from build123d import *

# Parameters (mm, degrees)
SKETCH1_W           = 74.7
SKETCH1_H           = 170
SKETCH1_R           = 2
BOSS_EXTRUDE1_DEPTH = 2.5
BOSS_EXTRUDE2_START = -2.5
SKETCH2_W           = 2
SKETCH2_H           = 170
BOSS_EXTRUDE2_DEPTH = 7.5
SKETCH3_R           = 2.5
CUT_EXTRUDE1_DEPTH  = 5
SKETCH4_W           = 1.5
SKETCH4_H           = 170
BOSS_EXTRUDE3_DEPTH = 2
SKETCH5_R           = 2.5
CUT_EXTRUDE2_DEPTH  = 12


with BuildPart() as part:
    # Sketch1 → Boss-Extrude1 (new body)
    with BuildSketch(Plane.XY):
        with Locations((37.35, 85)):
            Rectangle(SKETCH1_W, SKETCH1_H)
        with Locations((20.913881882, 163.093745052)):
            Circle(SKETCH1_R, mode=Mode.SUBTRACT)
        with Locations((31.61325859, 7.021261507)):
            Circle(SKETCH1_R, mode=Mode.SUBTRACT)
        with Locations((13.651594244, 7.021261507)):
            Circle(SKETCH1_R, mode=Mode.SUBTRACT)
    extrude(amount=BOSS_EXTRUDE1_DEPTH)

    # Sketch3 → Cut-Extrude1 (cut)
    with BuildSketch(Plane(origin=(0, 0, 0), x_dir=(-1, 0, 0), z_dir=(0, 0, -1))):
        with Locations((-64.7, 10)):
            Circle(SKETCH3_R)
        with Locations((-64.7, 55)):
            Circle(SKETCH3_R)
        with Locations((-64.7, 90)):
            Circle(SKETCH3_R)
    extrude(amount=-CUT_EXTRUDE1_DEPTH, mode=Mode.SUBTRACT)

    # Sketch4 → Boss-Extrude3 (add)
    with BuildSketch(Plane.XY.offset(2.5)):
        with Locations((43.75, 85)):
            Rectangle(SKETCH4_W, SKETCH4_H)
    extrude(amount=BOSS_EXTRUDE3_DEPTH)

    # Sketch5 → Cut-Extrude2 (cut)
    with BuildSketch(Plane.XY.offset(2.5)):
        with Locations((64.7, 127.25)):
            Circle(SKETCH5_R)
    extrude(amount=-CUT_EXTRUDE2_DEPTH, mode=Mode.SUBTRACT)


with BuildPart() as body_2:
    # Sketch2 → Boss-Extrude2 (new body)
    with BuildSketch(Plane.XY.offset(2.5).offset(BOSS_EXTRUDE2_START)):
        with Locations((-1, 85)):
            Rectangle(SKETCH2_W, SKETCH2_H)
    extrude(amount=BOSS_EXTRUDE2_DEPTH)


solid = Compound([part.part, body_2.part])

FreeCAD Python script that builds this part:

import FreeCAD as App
import Part
import Sketcher
from FreeCAD import Vector

doc = App.newDocument("Part")
body = doc.addObject("PartDesign::Body", "Body")

sketch1 = body.newObject("Sketcher::SketchObject", "Sketch")
sketch1.AttachmentSupport = (doc.getObject("XY_Plane"), [""])
sketch1.MapMode = "FlatFace"
sketch1.addGeometry([
    Part.LineSegment(Vector(0, 170, 0), Vector(0, 0, 0)),
    Part.LineSegment(Vector(0, 0, 0), Vector(74.7, 0, 0)),
    Part.LineSegment(Vector(74.7, 0, 0), Vector(74.7, 170, 0)),
    Part.LineSegment(Vector(74.7, 170, 0), Vector(0, 170, 0)),
    Part.Circle(Vector(13.7, 7, 0), Vector(0, 0, 1), 2),
    Part.Circle(Vector(31.6, 7, 0), Vector(0, 0, 1), 2),
    Part.Circle(Vector(20.9, 163.1, 0), Vector(0, 0, 1), 2),
], False)
sketch1.addConstraint([
    Sketcher.Constraint("Coincident", 0, 2, 1, 1),
    Sketcher.Constraint("Coincident", 1, 2, 2, 1),
    Sketcher.Constraint("Coincident", 2, 2, 3, 1),
    Sketcher.Constraint("Coincident", 3, 2, 0, 1),
    Sketcher.Constraint("Vertical", 0),
    Sketcher.Constraint("Horizontal", 1),
    Sketcher.Constraint("Vertical", 2),
    Sketcher.Constraint("Horizontal", 3),
    Sketcher.Constraint("Coincident", 0, 2, -1, 1),
    Sketcher.Constraint("Equal", 4, 5),
    Sketcher.Constraint("Equal", 5, 6),
    Sketcher.Constraint("Horizontal", 4, 3, 5, 3),
    Sketcher.Constraint("Diameter", 4, 4.0),
    Sketcher.Constraint("DistanceY", 0, 2, 0, 1, 170.0),
    Sketcher.Constraint("DistanceX", 1, 1, 1, 2, 74.7),
    Sketcher.Constraint("DistanceY", -1, 1, 4, 3, 7.021262),
    Sketcher.Constraint("DistanceX", -1, 1, 5, 3, 31.613259),
    Sketcher.Constraint("DistanceX", -1, 1, 6, 3, 20.913882),
    Sketcher.Constraint("DistanceX", -1, 1, 4, 3, 13.651594),
    Sketcher.Constraint("DistanceY", -1, 1, 6, 3, 163.093745),
])
pad1 = body.newObject("PartDesign::Pad", "Pad")
pad1.Profile = sketch1
pad1.Length = 2.5

sketch2 = body.newObject("Sketcher::SketchObject", "Sketch001")
sketch2.AttachmentSupport = (doc.getObject("XY_Plane"), [""])
sketch2.MapMode = "FlatFace"
sketch2.addGeometry([
    Part.Circle(Vector(64.7, 10, 0), Vector(0, 0, 1), 2.5),
    Part.Circle(Vector(64.7, 55, 0), Vector(0, 0, 1), 2.5),
    Part.Circle(Vector(64.7, 90, 0), Vector(0, 0, 1), 2.5),
], False)
sketch2.addConstraint([
    Sketcher.Constraint("Equal", 0, 1),
    Sketcher.Constraint("Equal", 1, 2),
    Sketcher.Constraint("Vertical", 0, 3, 1, 3),
    Sketcher.Constraint("Vertical", 1, 3, 2, 3),
    Sketcher.Constraint("Diameter", 0, 5.0),
    Sketcher.Constraint("DistanceY", -1, 1, 0, 3, 10.0),
    Sketcher.Constraint("DistanceY", -1, 1, 1, 3, 55.0),
    Sketcher.Constraint("DistanceY", -1, 1, 2, 3, 90.0),
    Sketcher.Constraint("DistanceX", -1, 1, 0, 3, 64.7),
])
pocket1 = body.newObject("PartDesign::Pocket", "Pocket")
pocket1.Profile = sketch2
pocket1.Length = 5
pocket1.Reversed = True

sketch3 = body.newObject("Sketcher::SketchObject", "Sketch002")
sketch3.AttachmentSupport = (doc.getObject("XY_Plane"), [""])
sketch3.MapMode = "FlatFace"
sketch3.AttachmentOffset = App.Placement(Vector(0, 0, 2.5), App.Rotation())
sketch3.addGeometry([
    Part.LineSegment(Vector(43, 170, 0), Vector(43, 0, 0)),
    Part.LineSegment(Vector(43, 0, 0), Vector(44.5, 0, 0)),
    Part.LineSegment(Vector(44.5, 0, 0), Vector(44.5, 170, 0)),
    Part.LineSegment(Vector(44.5, 170, 0), Vector(43, 170, 0)),
], False)
sketch3.addConstraint([
    Sketcher.Constraint("Coincident", 0, 2, 1, 1),
    Sketcher.Constraint("Coincident", 1, 2, 2, 1),
    Sketcher.Constraint("Coincident", 2, 2, 3, 1),
    Sketcher.Constraint("Coincident", 3, 2, 0, 1),
    Sketcher.Constraint("Vertical", 0),
    Sketcher.Constraint("Horizontal", 1),
    Sketcher.Constraint("Vertical", 2),
    Sketcher.Constraint("Horizontal", 3),
    Sketcher.Constraint("PointOnObject", 0, 2, -1),
    Sketcher.Constraint("DistanceY", 0, 2, 0, 1, 170.0),
    Sketcher.Constraint("DistanceX", 1, 1, 1, 2, 1.5),
    Sketcher.Constraint("DistanceX", -1, 1, 0, 2, 43.0),
])
pad2 = body.newObject("PartDesign::Pad", "Pad001")
pad2.Profile = sketch3
pad2.Length = 2

sketch4 = body.newObject("Sketcher::SketchObject", "Sketch003")
sketch4.AttachmentSupport = (doc.getObject("XY_Plane"), [""])
sketch4.MapMode = "FlatFace"
sketch4.AttachmentOffset = App.Placement(Vector(0, 0, 2.5), App.Rotation())
sketch4.addGeometry(Part.Circle(Vector(64.7, 127.2, 0), Vector(0, 0, 1), 2.5), False)
sketch4.addConstraint([
    Sketcher.Constraint("Diameter", 0, 5.0),
    Sketcher.Constraint("DistanceX", -1, 1, 0, 3, 64.7),
    Sketcher.Constraint("DistanceY", -1, 1, 0, 3, 127.25),
])
pocket2 = body.newObject("PartDesign::Pocket", "Pocket001")
pocket2.Profile = sketch4
pocket2.Length = 12
body2 = doc.addObject("PartDesign::Body", "Body001")

sketch5 = body2.newObject("Sketcher::SketchObject", "Sketch004")
sketch5.AttachmentSupport = (doc.getObject("XY_Plane001"), [""])
sketch5.MapMode = "FlatFace"
sketch5.addGeometry([
    Part.LineSegment(Vector(-2, 170, 0), Vector(-2, 0, 0)),
    Part.LineSegment(Vector(-2, 0, 0), Vector(0, 0, 0)),
    Part.LineSegment(Vector(0, 0, 0), Vector(0, 170, 0)),
    Part.LineSegment(Vector(0, 170, 0), Vector(-2, 170, 0)),
], False)
sketch5.addConstraint([
    Sketcher.Constraint("Coincident", 0, 2, 1, 1),
    Sketcher.Constraint("Coincident", 1, 2, 2, 1),
    Sketcher.Constraint("Coincident", 2, 2, 3, 1),
    Sketcher.Constraint("Coincident", 3, 2, 0, 1),
    Sketcher.Constraint("Vertical", 0),
    Sketcher.Constraint("Horizontal", 1),
    Sketcher.Constraint("Vertical", 2),
    Sketcher.Constraint("Horizontal", 3),
    Sketcher.Constraint("Coincident", 1, 2, -1, 1),
    Sketcher.Constraint("DistanceX", 1, 1, 1, 2, 2.0),
    Sketcher.Constraint("DistanceY", 0, 2, 0, 1, 170.0),
])
pad3 = body2.newObject("PartDesign::Pad", "Pad002")
pad3.Profile = sketch5
pad3.Length = 7.5

doc.recompute()
